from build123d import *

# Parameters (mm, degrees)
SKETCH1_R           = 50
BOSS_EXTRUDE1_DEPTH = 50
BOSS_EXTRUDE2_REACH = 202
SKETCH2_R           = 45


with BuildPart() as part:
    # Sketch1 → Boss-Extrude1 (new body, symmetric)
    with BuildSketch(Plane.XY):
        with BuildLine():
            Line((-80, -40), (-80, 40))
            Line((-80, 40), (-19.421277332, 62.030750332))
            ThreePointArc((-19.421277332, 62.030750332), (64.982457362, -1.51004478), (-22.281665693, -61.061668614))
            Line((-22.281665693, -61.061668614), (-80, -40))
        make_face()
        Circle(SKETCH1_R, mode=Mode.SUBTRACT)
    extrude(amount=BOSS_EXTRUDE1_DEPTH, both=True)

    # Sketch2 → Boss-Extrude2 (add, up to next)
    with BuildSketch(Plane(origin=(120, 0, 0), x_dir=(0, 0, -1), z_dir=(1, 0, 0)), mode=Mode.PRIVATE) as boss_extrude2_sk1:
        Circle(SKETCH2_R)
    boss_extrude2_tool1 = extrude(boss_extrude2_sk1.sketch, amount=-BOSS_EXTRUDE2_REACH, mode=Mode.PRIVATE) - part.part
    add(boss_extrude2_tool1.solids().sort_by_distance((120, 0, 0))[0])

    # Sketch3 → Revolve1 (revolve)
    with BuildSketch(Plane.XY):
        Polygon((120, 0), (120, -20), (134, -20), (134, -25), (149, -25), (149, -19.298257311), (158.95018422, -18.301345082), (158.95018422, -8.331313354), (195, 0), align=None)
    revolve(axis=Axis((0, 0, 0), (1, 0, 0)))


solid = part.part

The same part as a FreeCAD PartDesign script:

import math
import FreeCAD as App
import Part
import Sketcher
Q = App.Units.Quantity


def add_polygon(sketch, points):
    """Adds a closed chain of lines whose ends are joined by coincident constraints."""
    first, n = sketch.GeometryCount, len(points)
    for a, b in zip(points, points[1:] + points[:1]):
        sketch.addGeometry(Part.LineSegment(App.Vector(*a, 0), App.Vector(*b, 0)), False)
    for i in range(n):
        sketch.addConstraint(Sketcher.Constraint("Coincident", first + i, 2, first + (i + 1) % n, 1))

doc = App.newDocument("Part")
params = doc.addObject("Spreadsheet::Sheet", "Params")
for row, (alias, value) in enumerate([
    ("sketch1_diameter", "100 mm"),
    ("sketch1_radius", "65 mm"),
    ("sketch1_height", "80 mm"),
    ("pad1_length", "100 mm"),
    ("sketch2_diameter", "90 mm"),
    ("sketch3_width", "14 mm"),
    ("sketch3_width2", "15 mm"),
    ("sketch3_width3", "75 mm"),
    ("sketch3_height", "20 mm"),
    ("sketch3_height2", "5 mm"),
    ("revolution_angle", "360 deg"),
], start=1):
    params.set(f"A{row}", alias)
    params.set(f"B{row}", "=" + value)
    params.setAlias(f"B{row}", alias)

body = doc.addObject("PartDesign::Body", "Body")

# Sketch on XY plane
sketch1 = body.newObject("Sketcher::SketchObject", "Sketch")
sketch1.AttachmentSupport = (doc.getObject("XY_Plane"), [""])
sketch1.MapMode = "FlatFace"
sketch1.addGeometry(Part.LineSegment(App.Vector(-80, 40, 0), App.Vector(-80, -40, 0)), False)
sketch1.addGeometry(Part.LineSegment(App.Vector(-80, -40, 0), App.Vector(-22, -61, 0)), False)
sketch1.addGeometry(Part.ArcOfCircle(Part.Circle(App.Vector(0, 0, 0), App.Vector(0, 0, 1), 65), math.radians(-110), math.radians(107)), False)
sketch1.addGeometry(Part.LineSegment(App.Vector(-19, 62, 0), App.Vector(-80, 40, 0)), False)
sketch1.addGeometry(Part.Circle(App.Vector(0, 0, 0), App.Vector(0, 0, 1), 50), False)
sketch1.addConstraint(Sketcher.Constraint("Coincident", 0, 2, 1, 1))
sketch1.addConstraint(Sketcher.Constraint("Tangent", 1, 2, 2, 1))
sketch1.addConstraint(Sketcher.Constraint("Coincident", 2, 2, 3, 1))
sketch1.addConstraint(Sketcher.Constraint("Coincident", 3, 2, 0, 1))
sketch1.addConstraint(Sketcher.Constraint("Vertical", 0))
sketch1.addConstraint(Sketcher.Constraint("Coincident", 2, 3, -1, 1))
sketch1.addConstraint(Sketcher.Constraint("Coincident", 4, 3, -1, 1))
sketch1.addConstraint(Sketcher.Constraint("Diameter", 4, Q("100 mm")))
sketch1.addConstraint(Sketcher.Constraint("Radius", 2, Q("65 mm")))
sketch1.addConstraint(Sketcher.Constraint("DistanceY", 0, 2, 0, 1, Q("80 mm")))
sketch1.addConstraint(Sketcher.Constraint("DistanceX", 0, 2, -1, 1, Q("80 mm")))
sketch1.addConstraint(Sketcher.Constraint("DistanceY", 0, 2, -1, 1, Q("40 mm")))
sketch1.addConstraint(Sketcher.Constraint("Distance", 3, Q("64.460341 mm")))
sketch1.setExpression("Constraints[7]", "Params.sketch1_diameter")
sketch1.setExpression("Constraints[8]", "Params.sketch1_radius")
sketch1.setExpression("Constraints[9]", "Params.sketch1_height")
pad1 = body.newObject("PartDesign::Pad", "Pad")
pad1.Profile = sketch1
pad1.setExpression("Length", "Params.pad1_length")
pad1.Midplane = True

# Sketch on YZ plane
sketch2 = body.newObject("Sketcher::SketchObject", "Sketch001")
sketch2.AttachmentSupport = (doc.getObject("YZ_Plane"), [""])
sketch2.MapMode = "FlatFace"
sketch2.AttachmentOffset = App.Placement(App.Vector(0, 0, 120), App.Rotation())
sketch2.addGeometry(Part.Circle(App.Vector(0, 0, 0), App.Vector(0, 0, 1), 45), False)
sketch2.addConstraint(Sketcher.Constraint("Coincident", 0, 3, -1, 1))
sketch2.addConstraint(Sketcher.Constraint("Diameter", 0, Q("90 mm")))
sketch2.setExpression("Constraints[1]", "Params.sketch2_diameter")
pad2 = body.newObject("PartDesign::Pad", "Pad001")
pad2.Profile = sketch2
pad2.Type = "UpToFirst"
pad2.Reversed = True

# Sketch on XY plane
sketch3 = body.newObject("Sketcher::SketchObject", "Sketch002")
sketch3.AttachmentSupport = (doc.getObject("XY_Plane"), [""])
sketch3.MapMode = "FlatFace"
add_polygon(sketch3, [(120, 0), (120, -20), (134, -20), (134, -25), (149, -25), (149, -19), (159, -18), (159, -8), (195, 0)])  # lines 0-8
sketch3.addConstraint(Sketcher.Constraint("Vertical", 0))
sketch3.addConstraint(Sketcher.Constraint("Horizontal", 1))
sketch3.addConstraint(Sketcher.Constraint("Vertical", 2))
sketch3.addConstraint(Sketcher.Constraint("Horizontal", 3))
sketch3.addConstraint(Sketcher.Constraint("Vertical", 4))
sketch3.addConstraint(Sketcher.Constraint("Vertical", 6))
sketch3.addConstraint(Sketcher.Constraint("Horizontal", 8))
sketch3.addConstraint(Sketcher.Constraint("PointOnObject", 7, 2, -1))
sketch3.addConstraint(Sketcher.Constraint("DistanceX", 1, 1, 1, 2, Q("14 mm")))
sketch3.addConstraint(Sketcher.Constraint("DistanceX", 3, 1, 3, 2, Q("15 mm")))
sketch3.addConstraint(Sketcher.Constraint("DistanceX", 8, 2, 8, 1, Q("75 mm")))
sketch3.addConstraint(Sketcher.Constraint("DistanceY", 0, 2, 0, 1, Q("20 mm")))
sketch3.addConstraint(Sketcher.Constraint("DistanceY", 2, 2, 2, 1, Q("5 mm")))
sketch3.addConstraint(Sketcher.Constraint("Distance", 5, Q("10 mm")))
sketch3.addConstraint(Sketcher.Constraint("Distance", 7, Q("37 mm")))
sketch3.addConstraint(Sketcher.Constraint("DistanceX", -1, 1, 0, 2, Q("120 mm")))
sketch3.addConstraint(Sketcher.Constraint("DistanceY", 6, 1, 6, 2, Q("9.970032 mm")))
sketch3.addConstraint(Sketcher.Constraint("DistanceY", 4, 1, 4, 2, Q("5.701743 mm")))
sketch3.setExpression("Constraints[17]", "Params.sketch3_width")
sketch3.setExpression("Constraints[18]", "Params.sketch3_width2")
sketch3.setExpression("Constraints[19]", "Params.sketch3_width3")
sketch3.setExpression("Constraints[20]", "Params.sketch3_height")
sketch3.setExpression("Constraints[21]", "Params.sketch3_height2")
revolution = body.newObject("PartDesign::Revolution", "Revolution")
revolution.Profile = sketch3
revolution.ReferenceAxis = (sketch3, ["H_Axis"])
revolution.setExpression("Angle", "Params.revolution_angle")

doc.recompute()
